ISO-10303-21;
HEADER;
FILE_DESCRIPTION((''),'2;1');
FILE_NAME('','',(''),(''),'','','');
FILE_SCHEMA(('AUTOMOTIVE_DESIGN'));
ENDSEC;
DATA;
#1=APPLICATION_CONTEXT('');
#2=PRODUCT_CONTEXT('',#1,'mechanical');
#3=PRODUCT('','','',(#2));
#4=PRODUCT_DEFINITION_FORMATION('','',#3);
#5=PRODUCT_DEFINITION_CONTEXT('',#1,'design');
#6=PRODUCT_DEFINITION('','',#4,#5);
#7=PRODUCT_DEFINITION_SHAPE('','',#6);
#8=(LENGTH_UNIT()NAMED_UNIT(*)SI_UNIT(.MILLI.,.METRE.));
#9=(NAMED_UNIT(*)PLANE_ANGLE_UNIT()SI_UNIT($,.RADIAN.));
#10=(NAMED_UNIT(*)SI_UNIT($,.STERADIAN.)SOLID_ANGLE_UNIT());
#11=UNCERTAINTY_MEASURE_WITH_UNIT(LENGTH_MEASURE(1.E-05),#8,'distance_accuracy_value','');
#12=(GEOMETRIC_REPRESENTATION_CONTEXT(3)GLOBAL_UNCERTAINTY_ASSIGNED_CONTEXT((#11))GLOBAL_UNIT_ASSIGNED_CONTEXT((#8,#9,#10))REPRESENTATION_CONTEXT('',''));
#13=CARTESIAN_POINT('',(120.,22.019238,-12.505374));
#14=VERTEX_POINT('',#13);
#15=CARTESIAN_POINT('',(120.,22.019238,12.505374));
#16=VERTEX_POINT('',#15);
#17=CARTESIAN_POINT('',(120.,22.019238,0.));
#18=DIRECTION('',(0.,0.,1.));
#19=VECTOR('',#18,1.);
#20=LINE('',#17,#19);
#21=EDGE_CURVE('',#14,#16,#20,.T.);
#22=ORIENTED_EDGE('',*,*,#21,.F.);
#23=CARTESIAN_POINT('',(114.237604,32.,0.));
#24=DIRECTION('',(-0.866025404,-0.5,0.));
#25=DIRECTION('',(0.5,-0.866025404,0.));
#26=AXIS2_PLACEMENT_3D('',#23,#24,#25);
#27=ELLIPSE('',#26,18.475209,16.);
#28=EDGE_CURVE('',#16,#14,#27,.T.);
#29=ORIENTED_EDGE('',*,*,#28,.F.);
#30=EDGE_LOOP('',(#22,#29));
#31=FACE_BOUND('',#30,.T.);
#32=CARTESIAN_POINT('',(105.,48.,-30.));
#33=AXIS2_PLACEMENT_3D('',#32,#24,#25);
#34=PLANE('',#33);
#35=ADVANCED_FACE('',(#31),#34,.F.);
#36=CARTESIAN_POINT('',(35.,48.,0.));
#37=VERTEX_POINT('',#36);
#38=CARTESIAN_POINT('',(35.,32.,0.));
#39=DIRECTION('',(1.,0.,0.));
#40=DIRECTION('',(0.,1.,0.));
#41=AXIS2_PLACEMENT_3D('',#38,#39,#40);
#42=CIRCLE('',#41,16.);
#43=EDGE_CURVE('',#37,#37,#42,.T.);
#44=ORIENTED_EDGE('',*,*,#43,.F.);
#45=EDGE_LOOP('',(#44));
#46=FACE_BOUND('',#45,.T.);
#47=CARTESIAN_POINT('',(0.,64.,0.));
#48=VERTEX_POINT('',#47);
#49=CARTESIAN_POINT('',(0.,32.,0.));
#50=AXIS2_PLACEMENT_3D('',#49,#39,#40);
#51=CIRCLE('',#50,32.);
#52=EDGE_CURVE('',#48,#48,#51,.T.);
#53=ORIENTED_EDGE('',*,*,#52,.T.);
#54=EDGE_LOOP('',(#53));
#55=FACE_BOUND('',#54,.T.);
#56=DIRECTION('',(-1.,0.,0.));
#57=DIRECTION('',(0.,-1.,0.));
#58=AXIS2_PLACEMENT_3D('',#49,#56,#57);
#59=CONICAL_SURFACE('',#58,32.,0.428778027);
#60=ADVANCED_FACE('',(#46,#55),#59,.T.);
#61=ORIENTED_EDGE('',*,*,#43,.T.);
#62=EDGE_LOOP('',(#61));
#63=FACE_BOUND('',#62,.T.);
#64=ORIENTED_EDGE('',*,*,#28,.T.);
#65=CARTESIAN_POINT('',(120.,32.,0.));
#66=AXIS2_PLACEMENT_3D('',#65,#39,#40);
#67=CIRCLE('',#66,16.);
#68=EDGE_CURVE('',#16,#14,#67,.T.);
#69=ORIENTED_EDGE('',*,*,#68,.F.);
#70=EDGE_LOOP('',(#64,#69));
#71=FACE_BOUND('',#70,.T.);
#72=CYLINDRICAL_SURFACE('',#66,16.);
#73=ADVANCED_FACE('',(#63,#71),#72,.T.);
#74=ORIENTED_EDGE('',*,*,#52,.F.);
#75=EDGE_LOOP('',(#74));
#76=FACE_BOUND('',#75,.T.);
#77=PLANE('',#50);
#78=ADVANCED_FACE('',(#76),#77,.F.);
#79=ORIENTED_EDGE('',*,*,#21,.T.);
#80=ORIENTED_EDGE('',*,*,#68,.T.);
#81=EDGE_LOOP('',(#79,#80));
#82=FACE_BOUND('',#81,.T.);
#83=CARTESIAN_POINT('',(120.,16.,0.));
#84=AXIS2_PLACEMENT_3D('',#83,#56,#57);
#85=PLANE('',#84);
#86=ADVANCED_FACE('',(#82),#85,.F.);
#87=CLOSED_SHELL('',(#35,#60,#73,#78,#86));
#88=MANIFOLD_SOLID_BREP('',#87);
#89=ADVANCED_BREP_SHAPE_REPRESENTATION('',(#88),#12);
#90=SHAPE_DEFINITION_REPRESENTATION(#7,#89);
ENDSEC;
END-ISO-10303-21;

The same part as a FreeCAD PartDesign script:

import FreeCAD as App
import Part
import Sketcher
from FreeCAD import Vector
Q = App.Units.Quantity


def add_polygon(sketch, points):
    """Adds a closed chain of lines whose ends are joined by coincident constraints."""
    first, n = sketch.GeometryCount, len(points)
    for a, b in zip(points, points[1:] + points[:1]):
        sketch.addGeometry(Part.LineSegment(App.Vector(*a, 0), App.Vector(*b, 0)), False)
    for i in range(n):
        sketch.addConstraint(Sketcher.Constraint("Coincident", first + i, 2, first + (i + 1) % n, 1))

doc = App.newDocument("Part")
body = doc.addObject("PartDesign::Body", "Body")

# Sketch on XY plane
sketch1 = doc.addObject("Sketcher::SketchObject", "Sketch")
body.addObject(sketch1)
sketch1.AttachmentSupport = (doc.XY_Plane, [""])
sketch1.MapMode = "FlatFace"
add_polygon(sketch1, [(0, 0), (35, 16), (120, 16), (120, 32), (0, 32)])  # lines 0-4
sketch1.addGeometry(Part.LineSegment(Vector(120, 32, 0), Vector(0, 32, 0)), True)  # axis
sketch1.addConstraint([
    Sketcher.Constraint("Horizontal", 1),
    Sketcher.Constraint("Vertical", 2),
    Sketcher.Constraint("Horizontal", 3),
    Sketcher.Constraint("Vertical", 4),
    Sketcher.Constraint("Horizontal", 5),
    Sketcher.Constraint("Coincident", 4, 2, -1, 1),
    Sketcher.Constraint("Coincident", 5, 1, 2, 2),
    Sketcher.Constraint("PointOnObject", 5, 2, -2),
    Sketcher.Constraint("DistanceX", 1, 1, 1, 2, Q("85 mm")),
    Sketcher.Constraint("DistanceX", 3, 2, 3, 1, Q("120 mm")),
    Sketcher.Constraint("DistanceY", 2, 1, 2, 2, Q("16 mm")),
    Sketcher.Constraint("DistanceY", 4, 2, 4, 1, Q("32 mm")),
])
revolution = doc.addObject("PartDesign::Revolution", "Revolution")
body.addObject(revolution)
revolution.Profile = sketch1
revolution.ReferenceAxis = (sketch1, ["Axis0"])
revolution.Angle = 360

# Sketch on XY plane
sketch2 = doc.addObject("Sketcher::SketchObject", "Sketch001")
body.addObject(sketch2)
sketch2.AttachmentSupport = (doc.XY_Plane, [""])
sketch2.MapMode = "FlatFace"
add_polygon(sketch2, [(105, 48), (120, 22), (120, 48)])  # lines 0-2
sketch2.addConstraint([
    Sketcher.Constraint("Vertical", 1),
    Sketcher.Constraint("Horizontal", 2),
    Sketcher.Constraint("DistanceX", 2, 2, 2, 1, Q("15 mm")),
    Sketcher.Constraint("Angle", 0, Q("-60 deg")),
    Sketcher.Constraint("DistanceX", -1, 1, 0, 2, Q("120 mm")),
    Sketcher.Constraint("DistanceY", -1, 1, 1, 2, Q("48 mm")),
])
pocket1 = doc.addObject("PartDesign::Pocket", "Pocket")
body.addObject(pocket1)
pocket1.Profile = sketch2
pocket1.Length = 60
pocket1.Midplane = True

doc.recompute()
